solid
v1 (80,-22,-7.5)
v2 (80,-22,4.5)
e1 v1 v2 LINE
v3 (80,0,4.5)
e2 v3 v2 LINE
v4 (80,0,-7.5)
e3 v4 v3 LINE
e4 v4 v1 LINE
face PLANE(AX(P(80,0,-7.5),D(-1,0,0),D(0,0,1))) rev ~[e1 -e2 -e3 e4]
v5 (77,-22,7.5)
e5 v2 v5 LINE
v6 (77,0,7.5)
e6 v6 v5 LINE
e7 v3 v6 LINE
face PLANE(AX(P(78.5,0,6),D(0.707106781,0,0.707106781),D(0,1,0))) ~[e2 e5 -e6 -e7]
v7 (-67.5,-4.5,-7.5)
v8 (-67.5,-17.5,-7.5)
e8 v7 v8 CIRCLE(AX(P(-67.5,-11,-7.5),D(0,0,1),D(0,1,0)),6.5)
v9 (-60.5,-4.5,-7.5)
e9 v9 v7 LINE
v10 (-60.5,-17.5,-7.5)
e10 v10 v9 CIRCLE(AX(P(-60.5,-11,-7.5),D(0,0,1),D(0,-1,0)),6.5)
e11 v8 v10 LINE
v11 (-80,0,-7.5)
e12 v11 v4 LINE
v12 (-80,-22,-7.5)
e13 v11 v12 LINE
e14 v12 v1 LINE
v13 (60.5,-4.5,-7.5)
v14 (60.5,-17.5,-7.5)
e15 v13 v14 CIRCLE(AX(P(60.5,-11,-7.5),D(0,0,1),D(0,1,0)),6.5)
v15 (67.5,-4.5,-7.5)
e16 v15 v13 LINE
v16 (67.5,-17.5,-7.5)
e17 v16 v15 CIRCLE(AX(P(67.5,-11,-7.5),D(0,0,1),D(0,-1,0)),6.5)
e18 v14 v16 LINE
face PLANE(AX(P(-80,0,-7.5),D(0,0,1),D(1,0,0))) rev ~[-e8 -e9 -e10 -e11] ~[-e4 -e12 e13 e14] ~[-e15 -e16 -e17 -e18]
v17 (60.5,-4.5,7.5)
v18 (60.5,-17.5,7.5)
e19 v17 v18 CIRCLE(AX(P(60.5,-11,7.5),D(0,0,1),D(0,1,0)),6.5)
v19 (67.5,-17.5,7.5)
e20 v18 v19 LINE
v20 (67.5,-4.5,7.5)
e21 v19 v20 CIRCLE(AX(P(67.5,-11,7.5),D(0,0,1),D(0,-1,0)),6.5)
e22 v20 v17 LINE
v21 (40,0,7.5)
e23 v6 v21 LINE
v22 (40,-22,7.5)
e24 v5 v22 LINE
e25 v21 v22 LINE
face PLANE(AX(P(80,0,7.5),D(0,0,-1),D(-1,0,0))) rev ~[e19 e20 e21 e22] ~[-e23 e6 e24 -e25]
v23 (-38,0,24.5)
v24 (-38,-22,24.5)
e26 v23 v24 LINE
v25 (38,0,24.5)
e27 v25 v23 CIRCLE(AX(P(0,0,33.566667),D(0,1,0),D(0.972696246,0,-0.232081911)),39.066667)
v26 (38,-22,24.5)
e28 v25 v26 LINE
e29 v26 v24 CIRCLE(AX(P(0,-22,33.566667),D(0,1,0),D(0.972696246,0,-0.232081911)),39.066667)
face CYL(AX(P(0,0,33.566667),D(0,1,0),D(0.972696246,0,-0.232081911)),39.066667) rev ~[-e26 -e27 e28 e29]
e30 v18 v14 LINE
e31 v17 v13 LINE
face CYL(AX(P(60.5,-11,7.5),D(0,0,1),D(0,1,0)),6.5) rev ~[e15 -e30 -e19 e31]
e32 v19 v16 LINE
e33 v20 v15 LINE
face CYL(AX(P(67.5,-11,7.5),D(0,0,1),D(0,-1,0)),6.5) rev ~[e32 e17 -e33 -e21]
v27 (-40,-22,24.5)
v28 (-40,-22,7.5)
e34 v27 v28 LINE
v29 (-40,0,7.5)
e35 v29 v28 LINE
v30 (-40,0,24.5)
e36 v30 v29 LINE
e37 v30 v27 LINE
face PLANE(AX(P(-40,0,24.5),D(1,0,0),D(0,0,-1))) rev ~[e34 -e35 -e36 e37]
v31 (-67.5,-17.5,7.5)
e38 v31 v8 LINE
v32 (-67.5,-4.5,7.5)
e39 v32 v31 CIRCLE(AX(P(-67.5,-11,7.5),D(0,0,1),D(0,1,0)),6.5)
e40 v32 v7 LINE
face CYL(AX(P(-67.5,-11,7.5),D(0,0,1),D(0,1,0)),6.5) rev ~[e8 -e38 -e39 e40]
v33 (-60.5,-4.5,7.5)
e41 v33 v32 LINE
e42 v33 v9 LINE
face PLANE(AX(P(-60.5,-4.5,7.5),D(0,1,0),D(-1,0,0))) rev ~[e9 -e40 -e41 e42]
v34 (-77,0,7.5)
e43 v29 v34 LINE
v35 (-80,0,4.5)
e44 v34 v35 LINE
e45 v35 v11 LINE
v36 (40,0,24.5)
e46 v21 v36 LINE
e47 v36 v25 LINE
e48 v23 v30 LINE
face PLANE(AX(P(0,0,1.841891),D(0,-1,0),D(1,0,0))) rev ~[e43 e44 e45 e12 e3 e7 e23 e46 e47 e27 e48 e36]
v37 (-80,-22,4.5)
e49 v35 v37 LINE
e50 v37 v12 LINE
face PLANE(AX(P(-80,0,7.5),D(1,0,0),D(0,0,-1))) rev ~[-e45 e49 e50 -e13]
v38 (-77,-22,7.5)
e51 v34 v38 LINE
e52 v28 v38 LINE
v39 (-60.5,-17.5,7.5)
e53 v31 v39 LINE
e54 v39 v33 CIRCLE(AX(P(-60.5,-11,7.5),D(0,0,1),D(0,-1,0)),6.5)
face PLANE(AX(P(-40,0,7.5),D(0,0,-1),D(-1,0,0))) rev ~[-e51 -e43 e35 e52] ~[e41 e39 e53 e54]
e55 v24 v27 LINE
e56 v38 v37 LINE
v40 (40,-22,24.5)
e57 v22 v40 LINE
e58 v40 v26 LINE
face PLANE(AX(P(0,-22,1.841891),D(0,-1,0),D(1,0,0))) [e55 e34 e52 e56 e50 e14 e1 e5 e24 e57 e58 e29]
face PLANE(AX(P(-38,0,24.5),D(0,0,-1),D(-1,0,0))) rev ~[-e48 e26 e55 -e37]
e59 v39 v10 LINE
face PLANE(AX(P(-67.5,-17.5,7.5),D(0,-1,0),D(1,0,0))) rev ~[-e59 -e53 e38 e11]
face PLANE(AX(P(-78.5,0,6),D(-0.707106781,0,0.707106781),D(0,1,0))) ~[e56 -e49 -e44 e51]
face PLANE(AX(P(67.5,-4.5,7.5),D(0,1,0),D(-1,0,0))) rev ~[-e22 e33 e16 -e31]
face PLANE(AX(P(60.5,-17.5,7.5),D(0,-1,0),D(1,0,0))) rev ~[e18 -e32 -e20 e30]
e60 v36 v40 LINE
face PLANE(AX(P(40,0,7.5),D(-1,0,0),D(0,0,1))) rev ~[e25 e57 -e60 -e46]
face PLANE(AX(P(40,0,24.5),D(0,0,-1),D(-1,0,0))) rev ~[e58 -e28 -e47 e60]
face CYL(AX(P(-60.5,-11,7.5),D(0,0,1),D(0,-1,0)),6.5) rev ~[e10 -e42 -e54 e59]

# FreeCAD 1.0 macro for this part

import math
import FreeCAD as App
import Part
import Sketcher

V = App.Vector
Q = App.Units.Quantity


def edges_at(feature, points):
    """Names of the edges that pass closest to the given points."""
    edges = feature.Shape.Edges
    near = lambda p: min(range(len(edges)), key=lambda i: edges[i].distToShape(Part.Vertex(*p))[0])
    return sorted({f"Edge{near(p) + 1}" for p in points})

doc = App.newDocument("Part")
params = doc.addObject("Spreadsheet::Sheet", "Params")
for row, (alias, value) in enumerate([
    ("sketch1_width", "160 mm"),
    ("sketch1_width2", "40 mm"),
    ("sketch1_width3", "2 mm"),
    ("sketch1_height", "15 mm"),
    ("sketch1_height2", "17 mm"),
    ("pad1_length", "22 mm"),
    ("chamfer_size", "3 mm"),
    ("sketch2_radius", "6.5 mm"),
    ("sketch2_width", "7 mm"),
], start=1):
    params.set(f"A{row}", alias)
    params.set(f"B{row}", "=" + value)
    params.setAlias(f"B{row}", alias)

body = doc.addObject("PartDesign::Body", "Body")

# Sketch on XZ plane
sketch1 = body.newObject("Sketcher::SketchObject", "Sketch")
sketch1.AttachmentSupport = (doc.getObject("XZ_Plane"), [""])
sketch1.MapMode = "FlatFace"
sketch1.addGeometry(Part.LineSegment(V(-80, -7.5, 0), V(80, -7.5, 0)), False)
sketch1.addGeometry(Part.LineSegment(V(80, -7.5, 0), V(80, 7.5, 0)), False)
sketch1.addGeometry(Part.LineSegment(V(80, 7.5, 0), V(40, 7.5, 0)), False)
sketch1.addGeometry(Part.LineSegment(V(40, 7.5, 0), V(40, 24.5, 0)), False)
sketch1.addGeometry(Part.LineSegment(V(40, 24.5, 0), V(38, 24.5, 0)), False)
sketch1.addGeometry(Part.ArcOfCircle(Part.Circle(V(0, 33.6, 0), V(0, 0, 1), 39.1), math.radians(-167), math.radians(-13)), False)
sketch1.addGeometry(Part.LineSegment(V(-38, 24.5, 0), V(-40, 24.5, 0)), False)
sketch1.addGeometry(Part.LineSegment(V(-40, 24.5, 0), V(-40, 7.5, 0)), False)
sketch1.addGeometry(Part.LineSegment(V(-40, 7.5, 0), V(-80, 7.5, 0)), False)
sketch1.addGeometry(Part.LineSegment(V(-80, 7.5, 0), V(-80, -7.5, 0)), False)
sketch1.addConstraint(Sketcher.Constraint("Coincident", 0, 2, 1, 1))
sketch1.addConstraint(Sketcher.Constraint("Coincident", 1, 2, 2, 1))
sketch1.addConstraint(Sketcher.Constraint("Coincident", 2, 2, 3, 1))
sketch1.addConstraint(Sketcher.Constraint("Coincident", 3, 2, 4, 1))
sketch1.addConstraint(Sketcher.Constraint("Coincident", 4, 2, 5, 2))
sketch1.addConstraint(Sketcher.Constraint("Coincident", 5, 1, 6, 1))
sketch1.addConstraint(Sketcher.Constraint("Coincident", 6, 2, 7, 1))
sketch1.addConstraint(Sketcher.Constraint("Coincident", 7, 2, 8, 1))
sketch1.addConstraint(Sketcher.Constraint("Coincident", 8, 2, 9, 1))
sketch1.addConstraint(Sketcher.Constraint("Coincident", 9, 2, 0, 1))
sketch1.addConstraint(Sketcher.Constraint("Horizontal", 0))
sketch1.addConstraint(Sketcher.Constraint("Vertical", 1))
sketch1.addConstraint(Sketcher.Constraint("Horizontal", 2))
sketch1.addConstraint(Sketcher.Constraint("Vertical", 3))
sketch1.addConstraint(Sketcher.Constraint("Horizontal", 4))
sketch1.addConstraint(Sketcher.Constraint("Horizontal", 6))
sketch1.addConstraint(Sketcher.Constraint("Vertical", 7))
sketch1.addConstraint(Sketcher.Constraint("Horizontal", 8))
sketch1.addConstraint(Sketcher.Constraint("Vertical", 9))
sketch1.addConstraint(Sketcher.Constraint("Symmetric", 0, 2, 8, 2, -1, 1))
sketch1.addConstraint(Sketcher.Constraint("Symmetric", 4, 2, 5, 1, -2))
sketch1.addConstraint(Sketcher.Constraint("Symmetric", 2, 2, 7, 2, -2))
sketch1.addConstraint(Sketcher.Constraint("DistanceX", 0, 1, 0, 2, Q("160 mm")))
sketch1.addConstraint(Sketcher.Constraint("DistanceX", 2, 2, 2, 1, Q("40 mm")))
sketch1.addConstraint(Sketcher.Constraint("DistanceX", 4, 2, 4, 1, Q("2 mm")))
sketch1.addConstraint(Sketcher.Constraint("DistanceY", 1, 1, 1, 2, Q("15 mm")))
sketch1.addConstraint(Sketcher.Constraint("DistanceY", 3, 1, 3, 2, Q("17 mm")))
sketch1.addConstraint(Sketcher.Constraint("Radius", 5, Q("39.066667 mm")))
sketch1.setExpression("Constraints[22]", "Params.sketch1_width")
sketch1.setExpression("Constraints[23]", "Params.sketch1_width2")
sketch1.setExpression("Constraints[24]", "Params.sketch1_width3")
sketch1.setExpression("Constraints[25]", "Params.sketch1_height")
sketch1.setExpression("Constraints[26]", "Params.sketch1_height2")
pad1 = body.newObject("PartDesign::Pad", "Pad")
pad1.Profile = sketch1
pad1.setExpression("Length", "Params.pad1_length")
doc.recompute()

chamfer = body.newObject("PartDesign::Chamfer", "Chamfer")
chamfer.Base = (pad1, edges_at(pad1, [(-80, -11, 7.5), (80, -11, 7.5)]))
chamfer.setExpression("Size", "Params.chamfer_size")

# Sketch on XY plane
sketch2 = body.newObject("Sketcher::SketchObject", "Sketch001")
sketch2.AttachmentSupport = (doc.getObject("XY_Plane"), [""])
sketch2.MapMode = "FlatFace"
sketch2.AttachmentOffset = App.Placement(V(0, 0, 7.5), App.Rotation())
sketch2.addGeometry(Part.LineSegment(V(-60, -4, 0), V(-68, -4, 0)), False)
sketch2.addGeometry(Part.ArcOfCircle(Part.Circle(V(-68, -11, 0), V(0, 0, 1), 6), math.radians(90), math.radians(270)), False)
sketch2.addGeometry(Part.LineSegment(V(-68, -18, 0), V(-60, -18, 0)), False)
sketch2.addGeometry(Part.ArcOfCircle(Part.Circle(V(-60, -11, 0), V(0, 0, 1), 6), math.radians(-90), math.radians(90)), False)
sketch2.addGeometry(Part.ArcOfCircle(Part.Circle(V(60, -11, 0), V(0, 0, 1), 6), math.radians(90), math.radians(270)), False)
sketch2.addGeometry(Part.LineSegment(V(60, -18, 0), V(68, -18, 0)), False)
sketch2.addGeometry(Part.ArcOfCircle(Part.Circle(V(68, -11, 0), V(0, 0, 1), 6), math.radians(-90), math.radians(90)), False)
sketch2.addGeometry(Part.LineSegment(V(68, -4, 0), V(60, -4, 0)), False)
sketch2.addConstraint(Sketcher.Constraint("Tangent", 0, 2, 1, 1))
sketch2.addConstraint(Sketcher.Constraint("Tangent", 1, 2, 2, 1))
sketch2.addConstraint(Sketcher.Constraint("Tangent", 2, 2, 3, 1))
sketch2.addConstraint(Sketcher.Constraint("Tangent", 3, 2, 0, 1))
sketch2.addConstraint(Sketcher.Constraint("Tangent", 4, 2, 5, 1))
sketch2.addConstraint(Sketcher.Constraint("Tangent", 5, 2, 6, 1))
sketch2.addConstraint(Sketcher.Constraint("Tangent", 6, 2, 7, 1))
sketch2.addConstraint(Sketcher.Constraint("Tangent", 7, 2, 4, 1))
sketch2.addConstraint(Sketcher.Constraint("Horizontal", 0))
sketch2.addConstraint(Sketcher.Constraint("Horizontal", 2))
sketch2.addConstraint(Sketcher.Constraint("Horizontal", 5))
sketch2.addConstraint(Sketcher.Constraint("Horizontal", 7))
sketch2.addConstraint(Sketcher.Constraint("Equal", 3, 4))
sketch2.addConstraint(Sketcher.Constraint("Symmetric", 3, 3, 4, 3, -2))
sketch2.addConstraint(Sketcher.Constraint("Equal", 2, 5))
sketch2.addConstraint(Sketcher.Constraint("Radius", 1, Q("6.5 mm")))
sketch2.addConstraint(Sketcher.Constraint("DistanceX", 0, 2, 0, 1, Q("7 mm")))
sketch2.addConstraint(Sketcher.Constraint("DistanceY", 1, 3, -1, 1, Q("11 mm")))
sketch2.addConstraint(Sketcher.Constraint("DistanceX", 3, 3, 4, 3, Q("121 mm")))
sketch2.setExpression("Constraints[15]", "Params.sketch2_radius")
sketch2.setExpression("Constraints[16]", "Params.sketch2_width")
pocket1 = body.newObject("PartDesign::Pocket", "Pocket")
pocket1.Profile = sketch2
pocket1.Type = "ThroughAll"

doc.recompute()
